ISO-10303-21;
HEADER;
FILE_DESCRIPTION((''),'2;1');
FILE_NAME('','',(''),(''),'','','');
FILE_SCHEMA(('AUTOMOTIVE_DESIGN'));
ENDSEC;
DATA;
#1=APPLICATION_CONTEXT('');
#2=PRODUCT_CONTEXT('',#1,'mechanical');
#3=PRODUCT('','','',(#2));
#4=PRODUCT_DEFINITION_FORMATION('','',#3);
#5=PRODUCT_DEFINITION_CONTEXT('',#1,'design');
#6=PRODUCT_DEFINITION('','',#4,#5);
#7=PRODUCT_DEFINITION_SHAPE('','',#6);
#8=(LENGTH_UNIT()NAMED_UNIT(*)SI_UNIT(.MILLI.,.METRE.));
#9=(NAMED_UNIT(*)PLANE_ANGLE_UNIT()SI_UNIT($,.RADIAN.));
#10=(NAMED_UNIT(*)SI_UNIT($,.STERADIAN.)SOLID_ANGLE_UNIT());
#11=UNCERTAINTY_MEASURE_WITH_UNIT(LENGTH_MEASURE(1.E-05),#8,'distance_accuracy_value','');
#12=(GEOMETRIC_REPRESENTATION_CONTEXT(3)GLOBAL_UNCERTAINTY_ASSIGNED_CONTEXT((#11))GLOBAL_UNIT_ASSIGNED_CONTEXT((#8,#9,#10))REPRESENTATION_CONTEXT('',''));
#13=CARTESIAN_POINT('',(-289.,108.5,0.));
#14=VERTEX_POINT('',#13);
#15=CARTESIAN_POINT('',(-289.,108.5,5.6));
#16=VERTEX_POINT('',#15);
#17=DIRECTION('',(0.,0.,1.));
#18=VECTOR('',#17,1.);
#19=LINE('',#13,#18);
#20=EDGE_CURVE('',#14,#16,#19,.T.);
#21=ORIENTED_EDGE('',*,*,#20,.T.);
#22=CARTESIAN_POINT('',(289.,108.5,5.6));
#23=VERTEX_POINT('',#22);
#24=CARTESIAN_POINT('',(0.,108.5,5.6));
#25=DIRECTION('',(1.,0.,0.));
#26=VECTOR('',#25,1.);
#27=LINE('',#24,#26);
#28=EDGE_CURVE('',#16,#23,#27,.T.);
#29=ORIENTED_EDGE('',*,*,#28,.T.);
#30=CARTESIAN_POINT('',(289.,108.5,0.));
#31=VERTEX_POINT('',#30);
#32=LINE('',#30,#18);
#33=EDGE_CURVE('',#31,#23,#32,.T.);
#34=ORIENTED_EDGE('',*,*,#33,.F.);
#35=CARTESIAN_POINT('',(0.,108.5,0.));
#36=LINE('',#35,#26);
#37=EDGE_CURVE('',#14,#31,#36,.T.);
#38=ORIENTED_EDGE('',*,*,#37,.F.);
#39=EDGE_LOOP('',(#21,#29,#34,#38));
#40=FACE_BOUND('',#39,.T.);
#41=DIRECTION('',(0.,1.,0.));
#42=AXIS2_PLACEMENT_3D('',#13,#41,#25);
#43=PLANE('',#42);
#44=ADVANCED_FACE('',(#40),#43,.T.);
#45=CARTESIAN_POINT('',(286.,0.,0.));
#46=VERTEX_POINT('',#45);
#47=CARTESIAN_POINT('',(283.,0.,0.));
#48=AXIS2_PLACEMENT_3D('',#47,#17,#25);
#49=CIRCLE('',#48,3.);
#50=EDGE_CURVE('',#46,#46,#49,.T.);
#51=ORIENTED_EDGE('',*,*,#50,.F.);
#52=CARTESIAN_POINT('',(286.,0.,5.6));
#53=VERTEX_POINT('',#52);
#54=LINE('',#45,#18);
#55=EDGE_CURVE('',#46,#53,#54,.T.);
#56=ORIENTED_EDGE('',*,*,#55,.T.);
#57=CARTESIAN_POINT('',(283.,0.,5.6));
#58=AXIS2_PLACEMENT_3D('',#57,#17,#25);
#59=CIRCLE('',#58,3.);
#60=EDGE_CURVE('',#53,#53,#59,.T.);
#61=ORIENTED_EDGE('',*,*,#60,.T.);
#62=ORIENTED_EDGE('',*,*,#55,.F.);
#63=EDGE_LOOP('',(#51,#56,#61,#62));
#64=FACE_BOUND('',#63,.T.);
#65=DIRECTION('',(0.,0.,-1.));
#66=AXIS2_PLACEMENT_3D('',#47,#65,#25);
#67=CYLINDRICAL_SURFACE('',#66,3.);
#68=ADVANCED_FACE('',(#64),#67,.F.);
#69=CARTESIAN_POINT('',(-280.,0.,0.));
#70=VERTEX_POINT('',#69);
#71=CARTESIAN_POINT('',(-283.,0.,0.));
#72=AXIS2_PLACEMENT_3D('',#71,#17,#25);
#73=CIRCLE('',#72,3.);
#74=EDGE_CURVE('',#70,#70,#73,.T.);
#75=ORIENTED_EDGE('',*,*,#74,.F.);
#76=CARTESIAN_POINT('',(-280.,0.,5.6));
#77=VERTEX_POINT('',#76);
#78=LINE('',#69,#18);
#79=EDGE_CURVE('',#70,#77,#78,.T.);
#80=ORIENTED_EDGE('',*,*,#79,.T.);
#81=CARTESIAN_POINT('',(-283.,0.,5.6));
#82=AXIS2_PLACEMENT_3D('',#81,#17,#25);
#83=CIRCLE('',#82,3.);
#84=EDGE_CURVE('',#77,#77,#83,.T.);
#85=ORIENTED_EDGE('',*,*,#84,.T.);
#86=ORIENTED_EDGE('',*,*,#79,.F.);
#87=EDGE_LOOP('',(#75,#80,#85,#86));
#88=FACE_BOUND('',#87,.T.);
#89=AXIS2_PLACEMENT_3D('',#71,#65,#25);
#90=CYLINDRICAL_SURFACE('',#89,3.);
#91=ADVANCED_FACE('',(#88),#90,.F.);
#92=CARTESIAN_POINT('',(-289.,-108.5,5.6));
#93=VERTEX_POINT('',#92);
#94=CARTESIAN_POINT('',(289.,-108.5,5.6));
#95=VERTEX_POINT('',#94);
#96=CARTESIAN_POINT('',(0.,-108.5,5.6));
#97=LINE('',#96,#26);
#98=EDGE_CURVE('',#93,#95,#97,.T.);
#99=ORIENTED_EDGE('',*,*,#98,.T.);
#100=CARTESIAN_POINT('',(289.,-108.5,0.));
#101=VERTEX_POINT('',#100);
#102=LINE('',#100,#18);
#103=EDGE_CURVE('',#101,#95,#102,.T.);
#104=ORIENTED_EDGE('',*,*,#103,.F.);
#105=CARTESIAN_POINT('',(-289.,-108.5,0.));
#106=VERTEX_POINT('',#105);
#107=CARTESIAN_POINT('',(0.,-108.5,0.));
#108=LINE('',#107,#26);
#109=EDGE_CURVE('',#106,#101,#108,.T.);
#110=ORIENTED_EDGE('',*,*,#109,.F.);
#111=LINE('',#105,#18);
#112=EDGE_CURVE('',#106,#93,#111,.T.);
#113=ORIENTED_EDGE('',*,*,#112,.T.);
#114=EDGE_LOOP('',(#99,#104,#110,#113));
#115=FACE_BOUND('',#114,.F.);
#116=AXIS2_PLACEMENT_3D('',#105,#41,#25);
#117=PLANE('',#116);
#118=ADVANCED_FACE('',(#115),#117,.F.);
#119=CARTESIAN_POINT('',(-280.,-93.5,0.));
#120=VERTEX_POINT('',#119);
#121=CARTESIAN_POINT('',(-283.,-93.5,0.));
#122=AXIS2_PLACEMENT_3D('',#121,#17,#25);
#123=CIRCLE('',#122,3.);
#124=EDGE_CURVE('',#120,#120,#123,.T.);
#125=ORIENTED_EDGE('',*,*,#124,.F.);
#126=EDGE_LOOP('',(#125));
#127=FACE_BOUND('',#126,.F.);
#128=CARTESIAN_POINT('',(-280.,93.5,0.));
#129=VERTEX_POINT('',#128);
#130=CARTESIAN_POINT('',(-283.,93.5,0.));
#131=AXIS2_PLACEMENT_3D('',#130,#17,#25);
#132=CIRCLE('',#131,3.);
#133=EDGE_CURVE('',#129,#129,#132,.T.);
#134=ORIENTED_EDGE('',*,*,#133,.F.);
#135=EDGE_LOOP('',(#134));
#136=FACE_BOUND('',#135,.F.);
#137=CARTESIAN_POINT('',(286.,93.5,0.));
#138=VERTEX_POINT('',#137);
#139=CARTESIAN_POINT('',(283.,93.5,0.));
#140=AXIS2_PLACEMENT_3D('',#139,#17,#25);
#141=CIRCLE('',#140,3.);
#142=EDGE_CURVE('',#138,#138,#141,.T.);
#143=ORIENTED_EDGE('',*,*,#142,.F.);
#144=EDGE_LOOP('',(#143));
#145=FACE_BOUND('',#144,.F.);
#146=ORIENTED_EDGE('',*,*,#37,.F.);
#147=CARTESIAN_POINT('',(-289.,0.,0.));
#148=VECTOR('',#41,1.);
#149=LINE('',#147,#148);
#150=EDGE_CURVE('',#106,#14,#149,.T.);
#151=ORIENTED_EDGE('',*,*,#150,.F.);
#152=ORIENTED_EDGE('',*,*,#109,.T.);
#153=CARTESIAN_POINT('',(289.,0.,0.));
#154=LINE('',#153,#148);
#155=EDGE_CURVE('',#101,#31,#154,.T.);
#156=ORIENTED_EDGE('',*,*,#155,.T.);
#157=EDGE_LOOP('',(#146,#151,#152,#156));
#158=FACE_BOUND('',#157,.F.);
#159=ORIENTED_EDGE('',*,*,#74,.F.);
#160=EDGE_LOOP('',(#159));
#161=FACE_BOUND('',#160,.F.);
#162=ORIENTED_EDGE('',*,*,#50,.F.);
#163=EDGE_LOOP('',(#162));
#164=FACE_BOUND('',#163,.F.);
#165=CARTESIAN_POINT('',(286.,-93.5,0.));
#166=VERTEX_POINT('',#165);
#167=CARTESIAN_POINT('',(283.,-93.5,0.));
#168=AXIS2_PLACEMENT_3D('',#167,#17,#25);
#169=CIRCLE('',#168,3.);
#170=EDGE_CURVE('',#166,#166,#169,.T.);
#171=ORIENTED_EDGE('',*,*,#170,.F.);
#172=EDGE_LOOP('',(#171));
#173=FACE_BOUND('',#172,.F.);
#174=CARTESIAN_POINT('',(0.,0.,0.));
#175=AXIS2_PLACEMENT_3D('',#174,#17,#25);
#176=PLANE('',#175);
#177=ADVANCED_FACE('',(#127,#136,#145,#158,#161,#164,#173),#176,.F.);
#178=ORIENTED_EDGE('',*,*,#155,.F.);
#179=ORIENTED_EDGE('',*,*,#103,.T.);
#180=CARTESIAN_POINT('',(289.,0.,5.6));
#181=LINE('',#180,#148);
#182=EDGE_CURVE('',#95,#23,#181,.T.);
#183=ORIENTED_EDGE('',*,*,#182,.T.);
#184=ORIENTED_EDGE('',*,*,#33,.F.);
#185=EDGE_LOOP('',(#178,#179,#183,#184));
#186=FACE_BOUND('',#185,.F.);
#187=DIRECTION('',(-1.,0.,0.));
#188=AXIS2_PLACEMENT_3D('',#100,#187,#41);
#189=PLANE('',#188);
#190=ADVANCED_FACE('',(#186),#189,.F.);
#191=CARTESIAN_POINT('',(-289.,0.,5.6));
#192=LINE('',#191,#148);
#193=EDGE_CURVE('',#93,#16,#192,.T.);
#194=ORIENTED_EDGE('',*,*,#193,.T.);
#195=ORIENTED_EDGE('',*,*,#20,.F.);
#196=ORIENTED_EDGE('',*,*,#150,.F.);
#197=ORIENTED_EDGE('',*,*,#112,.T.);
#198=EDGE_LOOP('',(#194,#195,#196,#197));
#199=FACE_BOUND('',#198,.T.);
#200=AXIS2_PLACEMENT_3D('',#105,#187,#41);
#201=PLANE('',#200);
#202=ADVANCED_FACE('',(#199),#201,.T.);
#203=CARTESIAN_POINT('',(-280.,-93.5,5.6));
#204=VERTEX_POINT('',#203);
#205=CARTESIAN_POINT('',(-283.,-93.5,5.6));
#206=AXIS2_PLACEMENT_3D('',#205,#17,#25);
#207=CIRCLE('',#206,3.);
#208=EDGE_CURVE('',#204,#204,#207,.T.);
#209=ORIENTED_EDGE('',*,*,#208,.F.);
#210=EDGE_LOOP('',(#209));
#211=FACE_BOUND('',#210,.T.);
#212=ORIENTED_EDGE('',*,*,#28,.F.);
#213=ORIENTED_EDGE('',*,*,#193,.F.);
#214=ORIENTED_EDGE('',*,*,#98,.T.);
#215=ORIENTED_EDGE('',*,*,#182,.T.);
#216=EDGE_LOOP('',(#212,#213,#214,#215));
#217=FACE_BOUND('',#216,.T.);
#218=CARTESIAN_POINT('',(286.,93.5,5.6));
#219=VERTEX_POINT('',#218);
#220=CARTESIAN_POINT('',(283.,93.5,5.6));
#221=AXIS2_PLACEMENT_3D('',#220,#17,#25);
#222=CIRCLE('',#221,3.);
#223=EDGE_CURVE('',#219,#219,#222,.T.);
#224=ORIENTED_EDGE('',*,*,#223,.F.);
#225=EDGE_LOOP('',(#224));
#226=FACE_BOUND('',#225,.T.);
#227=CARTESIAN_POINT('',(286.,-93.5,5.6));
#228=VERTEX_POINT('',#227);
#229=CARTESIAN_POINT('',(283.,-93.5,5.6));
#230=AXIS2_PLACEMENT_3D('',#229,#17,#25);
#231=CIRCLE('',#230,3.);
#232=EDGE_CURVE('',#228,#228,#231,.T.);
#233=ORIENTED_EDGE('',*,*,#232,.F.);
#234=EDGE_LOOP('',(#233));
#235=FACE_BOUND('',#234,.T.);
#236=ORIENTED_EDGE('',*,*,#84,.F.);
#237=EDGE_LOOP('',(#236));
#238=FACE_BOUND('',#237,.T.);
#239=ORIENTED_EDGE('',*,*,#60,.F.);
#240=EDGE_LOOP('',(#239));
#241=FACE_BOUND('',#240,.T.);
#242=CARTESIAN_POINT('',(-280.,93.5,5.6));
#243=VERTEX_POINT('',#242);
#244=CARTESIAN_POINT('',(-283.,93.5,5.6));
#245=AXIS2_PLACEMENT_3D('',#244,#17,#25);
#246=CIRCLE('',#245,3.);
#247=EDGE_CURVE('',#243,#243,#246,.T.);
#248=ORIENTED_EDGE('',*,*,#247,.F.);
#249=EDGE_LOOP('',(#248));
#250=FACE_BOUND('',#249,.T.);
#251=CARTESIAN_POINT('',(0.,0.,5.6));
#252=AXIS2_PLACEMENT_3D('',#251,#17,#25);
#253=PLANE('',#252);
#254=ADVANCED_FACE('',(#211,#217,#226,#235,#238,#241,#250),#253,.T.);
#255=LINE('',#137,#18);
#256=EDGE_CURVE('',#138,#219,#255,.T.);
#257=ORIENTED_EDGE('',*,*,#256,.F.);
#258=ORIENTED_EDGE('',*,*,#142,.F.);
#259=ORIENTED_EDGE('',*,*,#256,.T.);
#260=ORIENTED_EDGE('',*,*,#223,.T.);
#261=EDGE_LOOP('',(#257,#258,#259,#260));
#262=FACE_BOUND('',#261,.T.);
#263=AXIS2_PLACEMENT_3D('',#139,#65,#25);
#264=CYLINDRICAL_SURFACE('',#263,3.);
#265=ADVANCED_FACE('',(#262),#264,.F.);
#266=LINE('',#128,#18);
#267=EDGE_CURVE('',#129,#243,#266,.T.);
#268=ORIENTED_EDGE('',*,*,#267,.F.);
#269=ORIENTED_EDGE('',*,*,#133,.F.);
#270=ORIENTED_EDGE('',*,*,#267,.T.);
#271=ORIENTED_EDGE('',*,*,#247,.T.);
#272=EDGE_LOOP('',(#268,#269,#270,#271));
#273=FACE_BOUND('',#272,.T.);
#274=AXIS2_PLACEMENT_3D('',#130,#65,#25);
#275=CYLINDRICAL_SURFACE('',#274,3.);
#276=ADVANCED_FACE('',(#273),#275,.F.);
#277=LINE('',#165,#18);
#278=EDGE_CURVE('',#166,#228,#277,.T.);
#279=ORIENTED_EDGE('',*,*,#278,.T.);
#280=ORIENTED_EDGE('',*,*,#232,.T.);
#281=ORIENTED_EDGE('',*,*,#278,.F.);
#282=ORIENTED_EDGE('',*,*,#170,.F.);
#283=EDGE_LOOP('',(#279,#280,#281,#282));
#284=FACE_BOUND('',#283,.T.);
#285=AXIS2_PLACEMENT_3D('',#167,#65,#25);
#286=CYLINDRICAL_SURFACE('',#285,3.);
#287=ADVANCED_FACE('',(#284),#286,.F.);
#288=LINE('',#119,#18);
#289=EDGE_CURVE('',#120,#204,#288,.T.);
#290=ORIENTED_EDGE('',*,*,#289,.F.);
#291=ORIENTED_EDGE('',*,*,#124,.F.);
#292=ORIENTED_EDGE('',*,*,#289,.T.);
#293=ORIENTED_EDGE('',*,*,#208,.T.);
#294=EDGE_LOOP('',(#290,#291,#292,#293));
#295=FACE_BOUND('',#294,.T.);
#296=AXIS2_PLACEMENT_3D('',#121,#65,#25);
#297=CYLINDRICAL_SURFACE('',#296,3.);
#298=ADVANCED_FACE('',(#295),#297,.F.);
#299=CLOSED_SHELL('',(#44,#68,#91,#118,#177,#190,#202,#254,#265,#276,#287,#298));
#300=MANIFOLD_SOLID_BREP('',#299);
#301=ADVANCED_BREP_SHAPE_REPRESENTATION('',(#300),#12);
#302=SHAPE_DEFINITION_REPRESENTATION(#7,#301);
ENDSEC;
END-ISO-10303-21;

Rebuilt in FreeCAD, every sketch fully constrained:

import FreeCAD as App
import Part
import Sketcher
from FreeCAD import Vector
Q = App.Units.Quantity


def add_polygon(sketch, points):
    """Adds a closed chain of lines whose ends are joined by coincident constraints."""
    first, n = sketch.GeometryCount, len(points)
    for a, b in zip(points, points[1:] + points[:1]):
        sketch.addGeometry(Part.LineSegment(App.Vector(*a, 0), App.Vector(*b, 0)), False)
    for i in range(n):
        sketch.addConstraint(Sketcher.Constraint("Coincident", first + i, 2, first + (i + 1) % n, 1))

doc = App.newDocument("Part")
body = doc.addObject("PartDesign::Body", "Body")

sketch1 = doc.addObject("Sketcher::SketchObject", "Sketch")
body.addObject(sketch1)
sketch1.AttachmentSupport = (doc.XY_Plane, [""])
sketch1.MapMode = "FlatFace"
add_polygon(sketch1, [(-289, 108.5), (-289, -108.5), (289, -108.5), (289, 108.5)])
sketch1.addGeometry(Part.Circle(Vector(-283, -93.5, 0), Vector(0, 0, 1), 3), False)
sketch1.addGeometry(Part.Circle(Vector(283, -93.5, 0), Vector(0, 0, 1), 3), False)
sketch1.addGeometry(Part.Circle(Vector(-283, 0, 0), Vector(0, 0, 1), 3), False)
sketch1.addGeometry(Part.Circle(Vector(-283, 93.5, 0), Vector(0, 0, 1), 3), False)
sketch1.addGeometry(Part.Circle(Vector(283, 0, 0), Vector(0, 0, 1), 3), False)
sketch1.addGeometry(Part.Circle(Vector(283, 93.5, 0), Vector(0, 0, 1), 3), False)
sketch1.addConstraint(Sketcher.Constraint("Vertical", 0))
sketch1.addConstraint(Sketcher.Constraint("Horizontal", 1))
sketch1.addConstraint(Sketcher.Constraint("Vertical", 2))
sketch1.addConstraint(Sketcher.Constraint("Horizontal", 3))
sketch1.addConstraint(Sketcher.Constraint("Equal", 4, 5))
sketch1.addConstraint(Sketcher.Constraint("Equal", 5, 6))
sketch1.addConstraint(Sketcher.Constraint("Equal", 6, 7))
sketch1.addConstraint(Sketcher.Constraint("Equal", 7, 8))
sketch1.addConstraint(Sketcher.Constraint("Equal", 8, 9))
sketch1.addConstraint(Sketcher.Constraint("Symmetric", 5, 3, 7, 3, -1, 1))
sketch1.addConstraint(Sketcher.Constraint("Symmetric", 6, 3, 8, 3, -1, 1))
sketch1.addConstraint(Sketcher.Constraint("Symmetric", 4, 3, 9, 3, -1, 1))
sketch1.addConstraint(Sketcher.Constraint("Symmetric", 0, 2, 2, 2, -1, 1))
sketch1.addConstraint(Sketcher.Constraint("Symmetric", 4, 3, 5, 3, -2))
sketch1.addConstraint(Sketcher.Constraint("PointOnObject", 6, 3, -1))
sketch1.addConstraint(Sketcher.Constraint("Vertical", 4, 3, 6, 3))
sketch1.addConstraint(Sketcher.Constraint("Diameter", 4, Q("6 mm")))
sketch1.addConstraint(Sketcher.Constraint("DistanceX", 1, 1, 1, 2, Q("578 mm")))
sketch1.addConstraint(Sketcher.Constraint("DistanceY", 0, 2, 0, 1, Q("217 mm")))
sketch1.addConstraint(Sketcher.Constraint("DistanceX", 4, 3, -1, 1, Q("283 mm")))
sketch1.addConstraint(Sketcher.Constraint("DistanceY", 4, 3, 7, 3, Q("187 mm")))
pad1 = doc.addObject("PartDesign::Pad", "Pad")
body.addObject(pad1)
pad1.Profile = sketch1
pad1.Length = 5.6

doc.recompute()
